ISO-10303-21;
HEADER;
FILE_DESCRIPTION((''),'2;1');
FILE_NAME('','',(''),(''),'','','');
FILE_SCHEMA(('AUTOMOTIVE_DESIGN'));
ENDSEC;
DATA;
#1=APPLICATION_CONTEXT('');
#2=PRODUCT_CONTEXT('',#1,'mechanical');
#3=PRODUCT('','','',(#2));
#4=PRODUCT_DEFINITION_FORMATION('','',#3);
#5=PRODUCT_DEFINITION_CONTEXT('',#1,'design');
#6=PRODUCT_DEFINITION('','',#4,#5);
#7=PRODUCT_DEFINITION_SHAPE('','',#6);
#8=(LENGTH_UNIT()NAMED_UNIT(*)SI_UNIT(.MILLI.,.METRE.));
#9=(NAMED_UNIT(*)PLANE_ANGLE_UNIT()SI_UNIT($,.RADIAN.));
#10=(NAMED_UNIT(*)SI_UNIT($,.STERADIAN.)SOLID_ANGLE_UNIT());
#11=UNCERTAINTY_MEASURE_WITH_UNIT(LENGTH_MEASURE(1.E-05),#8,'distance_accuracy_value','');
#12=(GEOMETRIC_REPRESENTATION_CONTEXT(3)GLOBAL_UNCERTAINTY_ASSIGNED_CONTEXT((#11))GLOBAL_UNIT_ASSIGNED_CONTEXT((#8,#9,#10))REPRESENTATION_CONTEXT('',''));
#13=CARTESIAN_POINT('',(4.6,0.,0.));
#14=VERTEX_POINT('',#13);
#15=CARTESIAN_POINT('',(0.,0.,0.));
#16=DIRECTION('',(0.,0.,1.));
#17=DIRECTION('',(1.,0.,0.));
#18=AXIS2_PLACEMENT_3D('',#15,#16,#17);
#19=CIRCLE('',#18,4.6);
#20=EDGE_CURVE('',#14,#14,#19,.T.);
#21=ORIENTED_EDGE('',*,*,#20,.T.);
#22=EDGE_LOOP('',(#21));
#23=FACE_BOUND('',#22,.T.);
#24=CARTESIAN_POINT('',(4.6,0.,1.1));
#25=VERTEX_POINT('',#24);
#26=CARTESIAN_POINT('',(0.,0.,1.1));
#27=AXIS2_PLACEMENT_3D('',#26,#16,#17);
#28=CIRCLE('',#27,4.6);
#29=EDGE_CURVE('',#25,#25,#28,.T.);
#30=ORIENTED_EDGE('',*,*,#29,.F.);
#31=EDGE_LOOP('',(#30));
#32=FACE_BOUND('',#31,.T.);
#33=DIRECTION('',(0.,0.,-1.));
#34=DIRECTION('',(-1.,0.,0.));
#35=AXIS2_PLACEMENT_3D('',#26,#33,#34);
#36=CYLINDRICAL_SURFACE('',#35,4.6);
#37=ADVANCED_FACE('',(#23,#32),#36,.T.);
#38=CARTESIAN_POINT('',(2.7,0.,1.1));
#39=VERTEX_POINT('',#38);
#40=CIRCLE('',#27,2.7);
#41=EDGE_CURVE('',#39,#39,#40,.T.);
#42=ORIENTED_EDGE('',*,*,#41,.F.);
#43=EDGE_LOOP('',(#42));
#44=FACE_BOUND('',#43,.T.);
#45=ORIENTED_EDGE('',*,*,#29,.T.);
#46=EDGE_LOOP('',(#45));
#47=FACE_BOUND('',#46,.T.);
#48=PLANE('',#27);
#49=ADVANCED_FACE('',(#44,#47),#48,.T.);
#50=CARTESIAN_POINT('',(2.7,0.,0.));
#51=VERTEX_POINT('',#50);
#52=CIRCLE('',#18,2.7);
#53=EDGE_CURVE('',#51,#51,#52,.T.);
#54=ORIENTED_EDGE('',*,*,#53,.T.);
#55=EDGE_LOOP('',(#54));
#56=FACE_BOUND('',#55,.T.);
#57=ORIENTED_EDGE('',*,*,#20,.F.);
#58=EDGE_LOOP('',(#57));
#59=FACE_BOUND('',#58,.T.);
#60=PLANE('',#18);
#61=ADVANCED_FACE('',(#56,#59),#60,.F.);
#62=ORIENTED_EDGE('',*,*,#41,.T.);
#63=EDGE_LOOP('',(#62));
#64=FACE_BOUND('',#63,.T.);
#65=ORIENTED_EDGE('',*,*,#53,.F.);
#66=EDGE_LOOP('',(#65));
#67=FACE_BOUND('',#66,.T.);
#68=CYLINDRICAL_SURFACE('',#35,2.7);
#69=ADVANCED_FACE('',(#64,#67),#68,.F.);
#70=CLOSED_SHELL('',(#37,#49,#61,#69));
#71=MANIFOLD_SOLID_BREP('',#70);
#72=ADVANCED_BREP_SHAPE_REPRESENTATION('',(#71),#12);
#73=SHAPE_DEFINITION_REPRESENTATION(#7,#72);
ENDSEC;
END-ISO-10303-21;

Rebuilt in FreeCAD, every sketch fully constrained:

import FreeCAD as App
import Part
import Sketcher

V = App.Vector

doc = App.newDocument("Part")
params = doc.addObject("Spreadsheet::Sheet", "Params")
for row, (alias, value) in enumerate([
    ("sketch1_diameter", "9.2 mm"),
    ("sketch1_diameter2", "5.4 mm"),
    ("pad1_length", "1.1 mm"),
], start=1):
    params.set(f"A{row}", alias)
    params.set(f"B{row}", "=" + value)
    params.setAlias(f"B{row}", alias)

body = doc.addObject("PartDesign::Body", "Body")

# Sketch on XY plane
sketch1 = body.newObject("Sketcher::SketchObject", "Sketch")
sketch1.AttachmentSupport = (doc.getObject("XY_Plane"), [""])
sketch1.MapMode = "FlatFace"
sketch1.addGeometry([
    Part.Circle(V(0, 0, 0), V(0, 0, 1), 4.6),
    Part.Circle(V(0, 0, 0), V(0, 0, 1), 2.7),
], False)
sketch1.addConstraint([
    Sketcher.Constraint("Coincident", 0, 3, -1, 1),
    Sketcher.Constraint("Coincident", 1, 3, -1, 1),
    Sketcher.Constraint("Diameter", 0, 9.2),
    Sketcher.Constraint("Diameter", 1, 5.4),
])
sketch1.setExpression("Constraints[2]", "Params.sketch1_diameter")
sketch1.setExpression("Constraints[3]", "Params.sketch1_diameter2")
pad1 = body.newObject("PartDesign::Pad", "Pad")
pad1.Profile = sketch1
pad1.setExpression("Length", "Params.pad1_length")

doc.recompute()
